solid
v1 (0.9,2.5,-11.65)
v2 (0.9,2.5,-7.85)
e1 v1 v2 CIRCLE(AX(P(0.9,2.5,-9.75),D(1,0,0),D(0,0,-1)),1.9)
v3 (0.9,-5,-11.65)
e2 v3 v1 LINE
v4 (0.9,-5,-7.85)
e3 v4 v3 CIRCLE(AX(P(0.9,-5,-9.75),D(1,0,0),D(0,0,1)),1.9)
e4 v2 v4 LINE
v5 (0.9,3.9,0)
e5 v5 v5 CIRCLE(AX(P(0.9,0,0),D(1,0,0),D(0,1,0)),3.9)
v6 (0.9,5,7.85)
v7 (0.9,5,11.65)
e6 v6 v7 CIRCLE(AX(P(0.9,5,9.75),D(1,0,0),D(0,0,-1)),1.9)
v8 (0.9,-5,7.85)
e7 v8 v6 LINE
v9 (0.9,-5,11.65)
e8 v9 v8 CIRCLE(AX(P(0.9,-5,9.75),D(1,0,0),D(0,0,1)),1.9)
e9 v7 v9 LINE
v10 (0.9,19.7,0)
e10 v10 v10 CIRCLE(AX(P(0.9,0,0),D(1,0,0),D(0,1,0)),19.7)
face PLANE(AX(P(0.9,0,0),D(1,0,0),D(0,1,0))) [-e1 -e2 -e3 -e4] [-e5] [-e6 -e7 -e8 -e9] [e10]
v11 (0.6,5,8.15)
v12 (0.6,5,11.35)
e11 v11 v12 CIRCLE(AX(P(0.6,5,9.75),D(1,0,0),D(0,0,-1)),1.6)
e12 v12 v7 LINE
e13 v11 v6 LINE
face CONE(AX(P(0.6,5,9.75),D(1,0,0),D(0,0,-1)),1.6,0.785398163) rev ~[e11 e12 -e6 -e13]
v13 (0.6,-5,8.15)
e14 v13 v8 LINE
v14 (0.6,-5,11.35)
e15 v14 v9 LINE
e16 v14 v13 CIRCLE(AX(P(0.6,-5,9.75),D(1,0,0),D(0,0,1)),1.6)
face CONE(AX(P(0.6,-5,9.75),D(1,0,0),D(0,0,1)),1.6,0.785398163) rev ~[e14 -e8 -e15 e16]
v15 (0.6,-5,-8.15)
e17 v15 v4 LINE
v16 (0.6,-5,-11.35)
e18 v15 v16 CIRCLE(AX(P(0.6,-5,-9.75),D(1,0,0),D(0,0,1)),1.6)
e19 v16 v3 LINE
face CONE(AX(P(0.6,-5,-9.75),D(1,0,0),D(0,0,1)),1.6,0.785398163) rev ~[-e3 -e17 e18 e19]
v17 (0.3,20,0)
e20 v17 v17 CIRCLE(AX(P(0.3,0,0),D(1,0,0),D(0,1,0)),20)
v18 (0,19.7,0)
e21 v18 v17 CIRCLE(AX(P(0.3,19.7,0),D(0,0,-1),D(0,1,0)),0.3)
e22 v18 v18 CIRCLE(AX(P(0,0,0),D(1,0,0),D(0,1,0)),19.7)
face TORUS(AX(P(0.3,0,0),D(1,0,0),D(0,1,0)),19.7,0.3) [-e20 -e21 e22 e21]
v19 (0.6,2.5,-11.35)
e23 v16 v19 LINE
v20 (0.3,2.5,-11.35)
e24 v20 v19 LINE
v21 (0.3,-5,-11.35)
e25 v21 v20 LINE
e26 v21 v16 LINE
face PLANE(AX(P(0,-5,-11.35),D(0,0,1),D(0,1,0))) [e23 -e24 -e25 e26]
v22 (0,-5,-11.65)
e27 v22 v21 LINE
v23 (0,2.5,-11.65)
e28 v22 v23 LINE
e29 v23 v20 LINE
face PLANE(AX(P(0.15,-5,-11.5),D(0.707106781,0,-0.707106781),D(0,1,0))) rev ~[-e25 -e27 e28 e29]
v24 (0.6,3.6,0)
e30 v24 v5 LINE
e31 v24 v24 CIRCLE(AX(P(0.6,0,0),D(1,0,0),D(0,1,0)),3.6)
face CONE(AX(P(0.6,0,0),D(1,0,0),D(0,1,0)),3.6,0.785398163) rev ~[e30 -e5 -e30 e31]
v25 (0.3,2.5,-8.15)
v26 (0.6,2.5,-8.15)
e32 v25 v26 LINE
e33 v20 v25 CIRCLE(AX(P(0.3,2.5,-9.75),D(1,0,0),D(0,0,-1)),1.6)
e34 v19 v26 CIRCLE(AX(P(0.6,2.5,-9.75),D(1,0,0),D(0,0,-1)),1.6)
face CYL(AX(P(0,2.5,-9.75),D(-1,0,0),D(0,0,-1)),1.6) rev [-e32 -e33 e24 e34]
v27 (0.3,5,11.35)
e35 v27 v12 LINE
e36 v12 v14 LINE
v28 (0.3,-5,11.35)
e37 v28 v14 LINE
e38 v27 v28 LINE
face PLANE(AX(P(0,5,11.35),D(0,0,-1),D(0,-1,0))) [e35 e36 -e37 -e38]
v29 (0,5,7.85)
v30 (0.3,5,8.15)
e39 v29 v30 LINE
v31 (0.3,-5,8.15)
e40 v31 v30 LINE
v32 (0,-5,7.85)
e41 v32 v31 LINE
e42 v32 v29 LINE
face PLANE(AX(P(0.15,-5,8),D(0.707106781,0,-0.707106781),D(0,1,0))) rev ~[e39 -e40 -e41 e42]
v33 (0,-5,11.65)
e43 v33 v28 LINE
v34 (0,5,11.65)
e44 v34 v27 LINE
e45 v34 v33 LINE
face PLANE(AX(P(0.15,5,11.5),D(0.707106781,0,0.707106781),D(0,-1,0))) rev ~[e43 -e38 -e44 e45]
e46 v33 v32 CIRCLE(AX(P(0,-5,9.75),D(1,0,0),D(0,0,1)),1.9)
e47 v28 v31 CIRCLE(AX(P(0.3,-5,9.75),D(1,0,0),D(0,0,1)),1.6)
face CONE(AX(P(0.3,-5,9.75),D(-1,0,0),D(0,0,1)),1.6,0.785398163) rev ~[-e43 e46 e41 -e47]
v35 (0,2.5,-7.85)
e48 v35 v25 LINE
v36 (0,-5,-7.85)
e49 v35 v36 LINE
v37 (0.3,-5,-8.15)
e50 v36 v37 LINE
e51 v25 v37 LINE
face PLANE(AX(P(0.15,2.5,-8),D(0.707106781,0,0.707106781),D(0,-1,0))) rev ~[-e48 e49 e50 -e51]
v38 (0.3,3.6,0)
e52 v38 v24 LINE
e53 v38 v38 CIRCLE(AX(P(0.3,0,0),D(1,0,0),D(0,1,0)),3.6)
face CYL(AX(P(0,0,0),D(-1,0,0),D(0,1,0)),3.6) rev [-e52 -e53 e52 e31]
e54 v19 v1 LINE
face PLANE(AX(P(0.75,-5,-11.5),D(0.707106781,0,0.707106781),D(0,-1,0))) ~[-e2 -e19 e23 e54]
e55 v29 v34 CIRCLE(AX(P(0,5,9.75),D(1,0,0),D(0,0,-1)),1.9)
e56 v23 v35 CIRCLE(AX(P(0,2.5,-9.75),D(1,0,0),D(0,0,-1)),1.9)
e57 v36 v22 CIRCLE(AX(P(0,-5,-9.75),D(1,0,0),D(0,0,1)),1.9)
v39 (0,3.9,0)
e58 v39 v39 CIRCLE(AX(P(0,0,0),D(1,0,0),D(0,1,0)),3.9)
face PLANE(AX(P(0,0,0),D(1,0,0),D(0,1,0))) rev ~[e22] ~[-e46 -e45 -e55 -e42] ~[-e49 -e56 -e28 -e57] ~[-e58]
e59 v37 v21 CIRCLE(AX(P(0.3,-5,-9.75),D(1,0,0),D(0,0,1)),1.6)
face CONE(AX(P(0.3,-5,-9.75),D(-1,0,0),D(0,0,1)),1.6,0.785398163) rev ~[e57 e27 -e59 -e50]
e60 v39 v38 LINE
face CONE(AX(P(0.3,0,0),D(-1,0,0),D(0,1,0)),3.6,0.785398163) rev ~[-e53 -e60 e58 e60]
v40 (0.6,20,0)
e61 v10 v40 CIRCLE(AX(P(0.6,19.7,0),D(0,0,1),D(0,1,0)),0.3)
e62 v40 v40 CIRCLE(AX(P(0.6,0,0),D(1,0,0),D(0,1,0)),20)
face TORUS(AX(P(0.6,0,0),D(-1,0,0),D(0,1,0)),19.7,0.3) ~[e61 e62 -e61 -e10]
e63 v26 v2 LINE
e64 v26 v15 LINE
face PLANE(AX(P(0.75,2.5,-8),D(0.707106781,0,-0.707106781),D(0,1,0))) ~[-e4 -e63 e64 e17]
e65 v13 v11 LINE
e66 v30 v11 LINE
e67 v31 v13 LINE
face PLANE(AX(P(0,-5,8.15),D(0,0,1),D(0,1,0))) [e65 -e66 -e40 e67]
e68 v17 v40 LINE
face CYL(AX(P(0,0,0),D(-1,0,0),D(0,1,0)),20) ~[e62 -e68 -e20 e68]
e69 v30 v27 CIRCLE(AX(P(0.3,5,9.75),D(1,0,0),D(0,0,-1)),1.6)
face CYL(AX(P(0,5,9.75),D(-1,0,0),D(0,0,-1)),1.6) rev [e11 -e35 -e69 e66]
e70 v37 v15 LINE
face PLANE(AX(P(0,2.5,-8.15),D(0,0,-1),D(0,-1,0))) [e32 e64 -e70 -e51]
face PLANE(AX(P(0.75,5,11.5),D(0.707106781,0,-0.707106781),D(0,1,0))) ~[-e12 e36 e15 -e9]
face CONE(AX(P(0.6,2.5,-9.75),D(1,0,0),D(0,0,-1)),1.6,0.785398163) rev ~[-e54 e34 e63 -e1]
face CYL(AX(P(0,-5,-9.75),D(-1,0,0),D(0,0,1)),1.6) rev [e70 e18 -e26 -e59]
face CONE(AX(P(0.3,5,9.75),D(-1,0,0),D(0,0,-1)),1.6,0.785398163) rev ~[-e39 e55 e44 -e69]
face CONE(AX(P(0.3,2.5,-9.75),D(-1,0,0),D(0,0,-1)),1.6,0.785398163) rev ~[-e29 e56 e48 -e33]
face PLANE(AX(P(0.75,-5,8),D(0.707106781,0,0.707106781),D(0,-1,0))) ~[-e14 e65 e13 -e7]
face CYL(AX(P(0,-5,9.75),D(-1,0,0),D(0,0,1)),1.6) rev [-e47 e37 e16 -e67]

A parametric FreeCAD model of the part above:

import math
import FreeCAD as App
import Part
import Sketcher
from FreeCAD import Vector


def edges_at(feature, points):
    """Names of the edges that pass closest to the given points."""
    edges = feature.Shape.Edges
    near = lambda p: min(range(len(edges)), key=lambda i: edges[i].distToShape(Part.Vertex(*p))[0])
    return sorted({f"Edge{near(p) + 1}" for p in points})

doc = App.newDocument("Part")
params = doc.addObject("Spreadsheet::Sheet", "Params")
for row, (alias, value) in enumerate([
    ("sketch1_diameter", "40 mm"),
    ("sketch1_diameter2", "7.2 mm"),
    ("sketch1_radius", "1.6 mm"),
    ("sketch1_width", "10 mm"),
    ("sketch1_width2", "7.5 mm"),
    ("pad1_length", "0.9 mm"),
    ("fillet_radius", "0.3 mm"),
    ("chamfer_size", "0.3 mm"),
], start=1):
    params.set(f"A{row}", alias)
    params.set(f"B{row}", "=" + value)
    params.setAlias(f"B{row}", alias)

body = doc.addObject("PartDesign::Body", "Body")

# Sketch on YZ plane
sketch1 = body.newObject("Sketcher::SketchObject", "Sketch")
sketch1.AttachmentSupport = (doc.getObject("YZ_Plane"), [""])
sketch1.MapMode = "FlatFace"
sketch1.addGeometry([
    Part.Circle(Vector(0, 0, 0), Vector(0, 0, 1), 20),  # 0
    Part.ArcOfCircle(Part.Circle(Vector(2.5, -9.8, 0), Vector(0, 0, 1), 1.6), math.radians(-90), math.radians(90)),  # 1
    Part.LineSegment(Vector(2.5, -11.3, 0), Vector(-5, -11.3, 0)),  # 2
    Part.ArcOfCircle(Part.Circle(Vector(-5, -9.8, 0), Vector(0, 0, 1), 1.6), math.radians(90), math.radians(270)),  # 3
    Part.LineSegment(Vector(-5, -8.2, 0), Vector(2.5, -8.2, 0)),  # 4
    Part.LineSegment(Vector(5, 8.2, 0), Vector(-5, 8.2, 0)),  # 5
    Part.ArcOfCircle(Part.Circle(Vector(-5, 9.8, 0), Vector(0, 0, 1), 1.6), math.radians(90), math.radians(270)),  # 6
    Part.LineSegment(Vector(-5, 11.3, 0), Vector(5, 11.3, 0)),  # 7
    Part.ArcOfCircle(Part.Circle(Vector(5, 9.8, 0), Vector(0, 0, 1), 1.6), math.radians(-90), math.radians(90)),  # 8
    Part.Circle(Vector(0, 0, 0), Vector(0, 0, 1), 3.6),  # 9
], False)
sketch1.addConstraint([
    Sketcher.Constraint("Tangent", 1, 1, 2, 1),
    Sketcher.Constraint("Tangent", 2, 2, 3, 2),
    Sketcher.Constraint("Tangent", 3, 1, 4, 1),
    Sketcher.Constraint("Tangent", 4, 2, 1, 2),
    Sketcher.Constraint("Tangent", 5, 2, 6, 2),
    Sketcher.Constraint("Tangent", 6, 1, 7, 1),
    Sketcher.Constraint("Tangent", 7, 2, 8, 2),
    Sketcher.Constraint("Tangent", 8, 1, 5, 1),
    Sketcher.Constraint("Horizontal", 2),
    Sketcher.Constraint("Horizontal", 4),
    Sketcher.Constraint("Horizontal", 5),
    Sketcher.Constraint("Horizontal", 7),
    Sketcher.Constraint("Coincident", 0, 3, -1, 1),
    Sketcher.Constraint("Coincident", 9, 3, -1, 1),
    Sketcher.Constraint("Equal", 3, 6),
    Sketcher.Constraint("Symmetric", 3, 3, 8, 3, -1, 1),
    Sketcher.Constraint("Vertical", 3, 3, 6, 3),
    Sketcher.Constraint("Diameter", 0, 40.0),
    Sketcher.Constraint("Diameter", 9, 7.2),
    Sketcher.Constraint("Radius", 1, 1.6),
    Sketcher.Constraint("DistanceX", 5, 2, 5, 1, 10.0),
    Sketcher.Constraint("DistanceX", 2, 2, 2, 1, 7.5),
    Sketcher.Constraint("DistanceY", 3, 3, 6, 3, 19.5),
])
sketch1.setExpression("Constraints[17]", "Params.sketch1_diameter")
sketch1.setExpression("Constraints[18]", "Params.sketch1_diameter2")
sketch1.setExpression("Constraints[19]", "Params.sketch1_radius")
sketch1.setExpression("Constraints[20]", "Params.sketch1_width")
sketch1.setExpression("Constraints[21]", "Params.sketch1_width2")
pad1 = body.newObject("PartDesign::Pad", "Pad")
pad1.Profile = sketch1
pad1.setExpression("Length", "Params.pad1_length")
doc.recompute()

fillet = body.newObject("PartDesign::Fillet", "Fillet")
fillet.Base = (pad1, edges_at(pad1, [(0.9, -20, 0), (0, -20, 0)]))
fillet.setExpression("Radius", "Params.fillet_radius")
doc.recompute()

chamfer = body.newObject("PartDesign::Chamfer", "Chamfer")
chamfer.Base = (fillet, edges_at(fillet, [
    (0.9, 0, 8.15),
    (0.9, -6.6, 9.75),
    (0.9, 0, 11.35),
    (0.9, 6.6, 9.75),
    (0.9, -3.6, 0),
    (0, -3.6, 0),
    (0, -1.25, -11.35),
    (0, -6.6, -9.75),
    (0, -1.25, -8.15),
    (0, 4.1, -9.75),
    (0.9, -1.25, -11.35),
    (0.9, -6.6, -9.75),
    (0.9, -1.25, -8.15),
    (0.9, 4.1, -9.75),
    (0, 0, 8.15),
    (0, -6.6, 9.75),
    (0, 0, 11.35),
    (0, 6.6, 9.75),
]))
chamfer.setExpression("Size", "Params.chamfer_size")

doc.recompute()
